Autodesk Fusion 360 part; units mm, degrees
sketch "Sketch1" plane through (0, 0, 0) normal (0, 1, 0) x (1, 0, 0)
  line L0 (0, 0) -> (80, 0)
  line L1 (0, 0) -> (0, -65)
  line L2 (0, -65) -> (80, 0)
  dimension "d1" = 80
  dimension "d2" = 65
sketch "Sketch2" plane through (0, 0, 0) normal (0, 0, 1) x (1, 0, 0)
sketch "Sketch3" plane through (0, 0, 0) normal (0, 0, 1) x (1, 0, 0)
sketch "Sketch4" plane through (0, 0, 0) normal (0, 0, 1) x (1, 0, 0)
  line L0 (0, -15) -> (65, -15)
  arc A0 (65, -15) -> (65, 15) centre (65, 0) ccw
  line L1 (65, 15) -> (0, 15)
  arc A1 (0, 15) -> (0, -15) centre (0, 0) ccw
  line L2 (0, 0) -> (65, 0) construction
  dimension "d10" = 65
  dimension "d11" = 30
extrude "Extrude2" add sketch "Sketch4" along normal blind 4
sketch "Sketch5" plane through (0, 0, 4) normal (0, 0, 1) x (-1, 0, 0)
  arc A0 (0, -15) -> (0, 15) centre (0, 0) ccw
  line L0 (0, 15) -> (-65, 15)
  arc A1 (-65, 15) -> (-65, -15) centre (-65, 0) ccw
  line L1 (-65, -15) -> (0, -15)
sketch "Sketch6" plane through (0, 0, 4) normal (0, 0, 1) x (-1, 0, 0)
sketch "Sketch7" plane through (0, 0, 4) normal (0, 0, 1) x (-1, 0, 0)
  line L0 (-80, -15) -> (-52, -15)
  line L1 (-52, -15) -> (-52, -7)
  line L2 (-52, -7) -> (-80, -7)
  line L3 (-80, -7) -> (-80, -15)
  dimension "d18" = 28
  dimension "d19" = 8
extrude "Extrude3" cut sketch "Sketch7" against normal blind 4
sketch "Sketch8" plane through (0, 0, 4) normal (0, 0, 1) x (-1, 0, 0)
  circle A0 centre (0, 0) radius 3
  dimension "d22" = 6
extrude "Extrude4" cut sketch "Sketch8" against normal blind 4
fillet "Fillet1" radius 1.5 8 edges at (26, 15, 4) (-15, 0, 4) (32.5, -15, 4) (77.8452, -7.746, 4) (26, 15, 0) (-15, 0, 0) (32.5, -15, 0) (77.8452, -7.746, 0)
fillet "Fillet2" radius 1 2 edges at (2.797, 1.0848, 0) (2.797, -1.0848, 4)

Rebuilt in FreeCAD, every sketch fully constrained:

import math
import FreeCAD as App
import Part
import Sketcher


def edges_at(feature, points):
    """Names of the edges that pass closest to the given points."""
    edges = feature.Shape.Edges
    near = lambda p: min(range(len(edges)), key=lambda i: edges[i].distToShape(Part.Vertex(*p))[0])
    return sorted({f"Edge{near(p) + 1}" for p in points})

doc = App.newDocument("Part")
body = doc.addObject("PartDesign::Body", "Body")

# Sketch on XY plane
sketch1 = body.newObject("Sketcher::SketchObject", "Sketch")
sketch1.AttachmentSupport = (doc.getObject("XY_Plane"), [""])
sketch1.MapMode = "FlatFace"
sketch1.addGeometry([
    Part.ArcOfCircle(Part.Circle(App.Vector(0, 0, 0), App.Vector(0, 0, 1), 15), math.radians(90), math.radians(270)),
    Part.LineSegment(App.Vector(0, -15, 0), App.Vector(65, -15, 0)),
    Part.ArcOfCircle(Part.Circle(App.Vector(65, 0, 0), App.Vector(0, 0, 1), 15), math.radians(-90), math.radians(90)),
    Part.LineSegment(App.Vector(65, 15, 0), App.Vector(0, 15, 0)),
], False)
sketch1.addConstraint([
    Sketcher.Constraint("Tangent", 0, 2, 1, 1),
    Sketcher.Constraint("Tangent", 1, 2, 2, 1),
    Sketcher.Constraint("Tangent", 2, 2, 3, 1),
    Sketcher.Constraint("Tangent", 3, 2, 0, 1),
    Sketcher.Constraint("Horizontal", 1),
    Sketcher.Constraint("Horizontal", 3),
    Sketcher.Constraint("Coincident", 0, 3, -1, 1),
    Sketcher.Constraint("Radius", 0, 15.0),
    Sketcher.Constraint("DistanceX", 1, 1, 1, 2, 65.0),
])
pad1 = body.newObject("PartDesign::Pad", "Pad")
pad1.Profile = sketch1
pad1.Length = 4

# Sketch on XY plane
sketch2 = body.newObject("Sketcher::SketchObject", "Sketch001")
sketch2.AttachmentSupport = (doc.getObject("XY_Plane"), [""])
sketch2.MapMode = "FlatFace"
sketch2.AttachmentOffset = App.Placement(App.Vector(0, 0, 4), App.Rotation())
sketch2.addGeometry([
    Part.LineSegment(App.Vector(80, 7, 0), App.Vector(80, 15, 0)),
    Part.LineSegment(App.Vector(80, 15, 0), App.Vector(52, 15, 0)),
    Part.LineSegment(App.Vector(52, 15, 0), App.Vector(52, 7, 0)),
    Part.LineSegment(App.Vector(52, 7, 0), App.Vector(80, 7, 0)),
], False)
sketch2.addConstraint([
    Sketcher.Constraint("Coincident", 0, 2, 1, 1),
    Sketcher.Constraint("Coincident", 1, 2, 2, 1),
    Sketcher.Constraint("Coincident", 2, 2, 3, 1),
    Sketcher.Constraint("Coincident", 3, 2, 0, 1),
    Sketcher.Constraint("Vertical", 0),
    Sketcher.Constraint("Horizontal", 1),
    Sketcher.Constraint("Vertical", 2),
    Sketcher.Constraint("Horizontal", 3),
    Sketcher.Constraint("DistanceX", 1, 2, 1, 1, 28.0),
    Sketcher.Constraint("DistanceY", 0, 1, 0, 2, 8.0),
    Sketcher.Constraint("DistanceX", -1, 1, 0, 2, 80.0),
    Sketcher.Constraint("DistanceY", -1, 1, 0, 2, 15.0),
])
pocket1 = body.newObject("PartDesign::Pocket", "Pocket")
pocket1.Profile = sketch2
pocket1.Length = 4

# Sketch on XY plane
sketch3 = body.newObject("Sketcher::SketchObject", "Sketch002")
sketch3.AttachmentSupport = (doc.getObject("XY_Plane"), [""])
sketch3.MapMode = "FlatFace"
sketch3.AttachmentOffset = App.Placement(App.Vector(0, 0, 4), App.Rotation())
sketch3.addGeometry(Part.Circle(App.Vector(0, 0, 0), App.Vector(0, 0, 1), 3), False)
sketch3.addConstraint([
    Sketcher.Constraint("Coincident", 0, 3, -1, 1),
    Sketcher.Constraint("Diameter", 0, 6.0),
])
pocket2 = body.newObject("PartDesign::Pocket", "Pocket001")
pocket2.Profile = sketch3
pocket2.Length = 4
doc.recompute()

fillet = body.newObject("PartDesign::Fillet", "Fillet")
fillet.Base = (pocket2, edges_at(pocket2, [
    (26, 15, 4),
    (-15, 0, 4),
    (32.5, -15, 4),
    (77.845, -7.746, 4),
    (26, 15, 0),
    (-15, 0, 0),
    (32.5, -15, 0),
    (77.845, -7.746, 0),
]))
fillet.Radius = 1.5
doc.recompute()

fillet2 = body.newObject("PartDesign::Fillet", "Fillet001")
fillet2.Base = (fillet, edges_at(fillet, [(2.797, 1.085, 0), (2.797, -1.085, 4)]))
fillet2.Radius = 1

doc.recompute()
